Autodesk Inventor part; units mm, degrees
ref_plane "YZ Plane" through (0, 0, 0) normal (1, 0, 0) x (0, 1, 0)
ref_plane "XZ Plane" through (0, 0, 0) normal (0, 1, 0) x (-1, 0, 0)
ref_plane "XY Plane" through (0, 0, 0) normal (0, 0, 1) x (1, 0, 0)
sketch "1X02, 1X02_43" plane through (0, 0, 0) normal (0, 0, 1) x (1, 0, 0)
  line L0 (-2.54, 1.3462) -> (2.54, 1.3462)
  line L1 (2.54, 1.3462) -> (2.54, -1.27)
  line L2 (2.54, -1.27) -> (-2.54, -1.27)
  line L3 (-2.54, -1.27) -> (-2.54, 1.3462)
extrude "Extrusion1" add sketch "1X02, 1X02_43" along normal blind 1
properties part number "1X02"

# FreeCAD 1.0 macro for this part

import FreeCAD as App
import Part
import Sketcher
Q = App.Units.Quantity

doc = App.newDocument("Part")
body = doc.addObject("PartDesign::Body", "Body")

# Sketch on XY plane
sketch1 = doc.addObject("Sketcher::SketchObject", "Sketch")
body.addObject(sketch1)
sketch1.AttachmentSupport = (doc.XY_Plane, [""])
sketch1.MapMode = "FlatFace"
sketch1.addGeometry([
    Part.LineSegment(App.Vector(2.54, 1.3462, 0), App.Vector(-2.54, 1.3462, 0)),
    Part.LineSegment(App.Vector(-2.54, 1.3462, 0), App.Vector(-2.54, -1.27, 0)),
    Part.LineSegment(App.Vector(-2.54, -1.27, 0), App.Vector(2.54, -1.27, 0)),
    Part.LineSegment(App.Vector(2.54, -1.27, 0), App.Vector(2.54, 1.3462, 0)),
], False)
sketch1.addConstraint([
    Sketcher.Constraint("Coincident", 0, 2, 1, 1),
    Sketcher.Constraint("Coincident", 1, 2, 2, 1),
    Sketcher.Constraint("Coincident", 2, 2, 3, 1),
    Sketcher.Constraint("Coincident", 3, 2, 0, 1),
    Sketcher.Constraint("Horizontal", 0),
    Sketcher.Constraint("Vertical", 1),
    Sketcher.Constraint("Horizontal", 2),
    Sketcher.Constraint("Vertical", 3),
    Sketcher.Constraint("DistanceX", 0, 2, 0, 1, Q("0.2 in")),
    Sketcher.Constraint("DistanceX", 0, 2, -1, 1, Q("0.1 in")),
    Sketcher.Constraint("DistanceY", 1, 2, 1, 1, Q("0.103 in")),
    Sketcher.Constraint("DistanceY", 1, 2, -1, 1, Q("0.05 in")),
])
pad1 = doc.addObject("PartDesign::Pad", "Pad")
body.addObject(pad1)
pad1.Profile = sketch1
pad1.Length = 1

doc.recompute()
